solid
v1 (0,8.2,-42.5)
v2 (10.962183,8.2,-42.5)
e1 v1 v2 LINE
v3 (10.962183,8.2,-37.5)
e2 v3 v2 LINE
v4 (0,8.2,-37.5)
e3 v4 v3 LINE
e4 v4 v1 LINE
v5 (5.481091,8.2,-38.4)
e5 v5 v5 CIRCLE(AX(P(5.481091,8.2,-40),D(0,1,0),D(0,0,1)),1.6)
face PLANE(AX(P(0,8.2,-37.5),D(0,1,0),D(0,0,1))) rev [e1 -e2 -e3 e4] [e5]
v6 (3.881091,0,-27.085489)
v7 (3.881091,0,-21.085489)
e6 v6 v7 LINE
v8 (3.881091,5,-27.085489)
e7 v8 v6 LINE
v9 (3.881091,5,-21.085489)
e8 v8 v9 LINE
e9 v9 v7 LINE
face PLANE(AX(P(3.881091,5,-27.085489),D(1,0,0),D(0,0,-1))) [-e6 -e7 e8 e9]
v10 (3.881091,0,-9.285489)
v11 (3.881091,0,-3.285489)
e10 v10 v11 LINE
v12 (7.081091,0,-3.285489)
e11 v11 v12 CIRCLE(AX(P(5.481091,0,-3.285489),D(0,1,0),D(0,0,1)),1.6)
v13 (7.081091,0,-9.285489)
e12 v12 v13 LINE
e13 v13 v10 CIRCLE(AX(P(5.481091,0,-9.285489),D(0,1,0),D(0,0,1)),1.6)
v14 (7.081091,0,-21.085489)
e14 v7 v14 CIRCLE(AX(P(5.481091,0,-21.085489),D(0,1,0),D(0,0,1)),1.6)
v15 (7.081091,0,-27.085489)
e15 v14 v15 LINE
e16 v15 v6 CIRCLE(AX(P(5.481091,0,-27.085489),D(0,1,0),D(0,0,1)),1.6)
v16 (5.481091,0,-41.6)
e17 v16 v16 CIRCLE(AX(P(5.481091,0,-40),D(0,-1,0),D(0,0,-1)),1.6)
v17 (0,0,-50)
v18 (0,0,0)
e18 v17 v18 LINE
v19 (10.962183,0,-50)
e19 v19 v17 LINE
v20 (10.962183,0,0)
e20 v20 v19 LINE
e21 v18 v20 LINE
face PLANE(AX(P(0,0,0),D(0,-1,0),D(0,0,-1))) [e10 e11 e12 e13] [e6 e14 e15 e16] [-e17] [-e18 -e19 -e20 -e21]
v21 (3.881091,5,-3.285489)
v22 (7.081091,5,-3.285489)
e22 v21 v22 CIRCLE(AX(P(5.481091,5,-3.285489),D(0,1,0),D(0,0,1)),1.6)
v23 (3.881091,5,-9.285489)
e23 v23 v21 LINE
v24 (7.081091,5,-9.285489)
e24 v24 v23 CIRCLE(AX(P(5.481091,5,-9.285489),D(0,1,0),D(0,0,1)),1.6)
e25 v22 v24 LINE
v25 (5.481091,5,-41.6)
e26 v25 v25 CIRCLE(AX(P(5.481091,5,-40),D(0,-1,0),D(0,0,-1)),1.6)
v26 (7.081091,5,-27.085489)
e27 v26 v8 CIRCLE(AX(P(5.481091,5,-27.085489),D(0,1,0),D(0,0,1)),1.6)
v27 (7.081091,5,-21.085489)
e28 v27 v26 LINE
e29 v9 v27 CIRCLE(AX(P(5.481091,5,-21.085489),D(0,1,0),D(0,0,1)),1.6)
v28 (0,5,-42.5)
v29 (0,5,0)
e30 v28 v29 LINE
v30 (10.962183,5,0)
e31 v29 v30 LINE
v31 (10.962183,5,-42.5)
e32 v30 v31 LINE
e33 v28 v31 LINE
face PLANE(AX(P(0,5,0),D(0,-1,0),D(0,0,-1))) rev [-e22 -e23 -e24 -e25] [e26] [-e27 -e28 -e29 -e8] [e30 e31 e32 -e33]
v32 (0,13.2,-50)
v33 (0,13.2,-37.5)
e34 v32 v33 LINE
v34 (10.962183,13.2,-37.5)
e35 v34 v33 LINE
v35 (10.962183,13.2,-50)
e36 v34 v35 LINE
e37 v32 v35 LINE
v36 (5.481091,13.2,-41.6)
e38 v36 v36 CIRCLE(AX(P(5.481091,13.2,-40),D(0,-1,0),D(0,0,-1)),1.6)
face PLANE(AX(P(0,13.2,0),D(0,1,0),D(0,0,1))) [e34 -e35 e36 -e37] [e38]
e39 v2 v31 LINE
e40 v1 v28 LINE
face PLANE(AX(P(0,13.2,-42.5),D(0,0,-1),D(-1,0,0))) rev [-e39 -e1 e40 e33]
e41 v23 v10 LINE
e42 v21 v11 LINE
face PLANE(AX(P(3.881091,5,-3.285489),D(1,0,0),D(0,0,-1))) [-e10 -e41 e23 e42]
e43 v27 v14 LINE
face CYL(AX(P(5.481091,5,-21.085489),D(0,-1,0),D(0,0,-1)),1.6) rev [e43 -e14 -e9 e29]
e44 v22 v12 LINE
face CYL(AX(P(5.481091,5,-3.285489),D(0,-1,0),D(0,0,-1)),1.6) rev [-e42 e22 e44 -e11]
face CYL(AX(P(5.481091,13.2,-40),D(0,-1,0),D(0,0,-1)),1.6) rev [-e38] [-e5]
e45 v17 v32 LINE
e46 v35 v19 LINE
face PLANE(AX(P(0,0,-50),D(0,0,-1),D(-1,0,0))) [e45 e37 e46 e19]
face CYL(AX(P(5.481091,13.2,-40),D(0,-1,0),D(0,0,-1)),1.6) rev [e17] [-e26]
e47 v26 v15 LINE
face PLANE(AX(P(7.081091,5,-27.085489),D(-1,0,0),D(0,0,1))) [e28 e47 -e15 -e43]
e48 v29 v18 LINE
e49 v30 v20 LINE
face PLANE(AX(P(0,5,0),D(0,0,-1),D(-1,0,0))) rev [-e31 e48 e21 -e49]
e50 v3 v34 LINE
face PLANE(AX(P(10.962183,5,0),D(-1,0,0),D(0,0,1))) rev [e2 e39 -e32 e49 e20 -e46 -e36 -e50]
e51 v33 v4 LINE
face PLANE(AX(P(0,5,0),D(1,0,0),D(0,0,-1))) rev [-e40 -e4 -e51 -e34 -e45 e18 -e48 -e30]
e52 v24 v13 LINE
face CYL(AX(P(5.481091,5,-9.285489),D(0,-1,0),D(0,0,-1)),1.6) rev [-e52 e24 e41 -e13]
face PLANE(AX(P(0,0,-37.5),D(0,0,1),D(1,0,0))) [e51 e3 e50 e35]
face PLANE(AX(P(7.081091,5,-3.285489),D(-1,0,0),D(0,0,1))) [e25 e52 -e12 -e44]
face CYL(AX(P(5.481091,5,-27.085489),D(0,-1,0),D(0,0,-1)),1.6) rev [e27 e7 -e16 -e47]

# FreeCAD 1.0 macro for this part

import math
import FreeCAD as App
import Part
import Sketcher
Q = App.Units.Quantity


def add_polygon(sketch, points):
    """Adds a closed chain of lines whose ends are joined by coincident constraints."""
    first, n = sketch.GeometryCount, len(points)
    for a, b in zip(points, points[1:] + points[:1]):
        sketch.addGeometry(Part.LineSegment(App.Vector(*a, 0), App.Vector(*b, 0)), False)
    for i in range(n):
        sketch.addConstraint(Sketcher.Constraint("Coincident", first + i, 2, first + (i + 1) % n, 1))

doc = App.newDocument("Part")
body = doc.addObject("PartDesign::Body", "Body")

# Sketch on XZ plane
sketch1 = doc.addObject("Sketcher::SketchObject", "Sketch")
body.addObject(sketch1)
sketch1.AttachmentSupport = (doc.XZ_Plane, [""])
sketch1.MapMode = "FlatFace"
add_polygon(sketch1, [(0, -45), (0, 0), (11, 0), (11, -45)])  # lines 0-3
sketch1.addGeometry(Part.ArcOfCircle(Part.Circle(App.Vector(5.5, -3.3, 0), App.Vector(0, 0, 1), 1.6), math.radians(0), math.radians(180)), False)  # 4
sketch1.addGeometry(Part.LineSegment(App.Vector(3.9, -3.3, 0), App.Vector(3.9, -9.3, 0)), False)  # 5
sketch1.addGeometry(Part.ArcOfCircle(Part.Circle(App.Vector(5.5, -9.3, 0), App.Vector(0, 0, 1), 1.6), math.radians(180), math.radians(360)), False)  # 6
sketch1.addGeometry(Part.LineSegment(App.Vector(7.1, -9.3, 0), App.Vector(7.1, -3.3, 0)), False)  # 7
sketch1.addGeometry(Part.Circle(App.Vector(5.5, -40, 0), App.Vector(0, 0, 1), 1.2), False)  # 8
sketch1.addGeometry(Part.ArcOfCircle(Part.Circle(App.Vector(5.5, -27.1, 0), App.Vector(0, 0, 1), 1.6), math.radians(180), math.radians(360)), False)  # 9
sketch1.addGeometry(Part.LineSegment(App.Vector(7.1, -27.1, 0), App.Vector(7.1, -21.1, 0)), False)  # 10
sketch1.addGeometry(Part.ArcOfCircle(Part.Circle(App.Vector(5.5, -21.1, 0), App.Vector(0, 0, 1), 1.6), math.radians(0), math.radians(180)), False)  # 11
sketch1.addGeometry(Part.LineSegment(App.Vector(3.9, -21.1, 0), App.Vector(3.9, -27.1, 0)), False)  # 12
sketch1.addConstraint(Sketcher.Constraint("Tangent", 4, 2, 5, 1))
sketch1.addConstraint(Sketcher.Constraint("Tangent", 5, 2, 6, 1))
sketch1.addConstraint(Sketcher.Constraint("Tangent", 6, 2, 7, 1))
sketch1.addConstraint(Sketcher.Constraint("Tangent", 7, 2, 4, 1))
sketch1.addConstraint(Sketcher.Constraint("Tangent", 9, 2, 10, 1))
sketch1.addConstraint(Sketcher.Constraint("Tangent", 10, 2, 11, 1))
sketch1.addConstraint(Sketcher.Constraint("Tangent", 11, 2, 12, 1))
sketch1.addConstraint(Sketcher.Constraint("Tangent", 12, 2, 9, 1))
sketch1.addConstraint(Sketcher.Constraint("Vertical", 0))
sketch1.addConstraint(Sketcher.Constraint("Horizontal", 1))
sketch1.addConstraint(Sketcher.Constraint("Vertical", 2))
sketch1.addConstraint(Sketcher.Constraint("Horizontal", 3))
sketch1.addConstraint(Sketcher.Constraint("Vertical", 5))
sketch1.addConstraint(Sketcher.Constraint("Vertical", 7))
sketch1.addConstraint(Sketcher.Constraint("Vertical", 10))
sketch1.addConstraint(Sketcher.Constraint("Vertical", 12))
sketch1.addConstraint(Sketcher.Constraint("Coincident", 0, 2, -1, 1))
sketch1.addConstraint(Sketcher.Constraint("Equal", 6, 9))
sketch1.addConstraint(Sketcher.Constraint("Vertical", 6, 3, 8, 3))
sketch1.addConstraint(Sketcher.Constraint("Vertical", 8, 3, 9, 3))
sketch1.addConstraint(Sketcher.Constraint("Equal", 7, 10))
sketch1.addConstraint(Sketcher.Constraint("Diameter", 8, Q("2.5 mm")))
sketch1.addConstraint(Sketcher.Constraint("Radius", 4, Q("1.6 mm")))
sketch1.addConstraint(Sketcher.Constraint("DistanceY", 0, 1, 0, 2, Q("45 mm")))
sketch1.addConstraint(Sketcher.Constraint("DistanceY", 5, 2, 5, 1, Q("6 mm")))
sketch1.addConstraint(Sketcher.Constraint("DistanceY", 8, 3, -1, 1, Q("40 mm")))
sketch1.addConstraint(Sketcher.Constraint("DistanceY", 9, 3, 6, 3, Q("17.8 mm")))
sketch1.addConstraint(Sketcher.Constraint("DistanceX", 1, 1, 1, 2, Q("10.962183 mm")))
sketch1.addConstraint(Sketcher.Constraint("DistanceX", -1, 1, 4, 3, Q("5.481091 mm")))
sketch1.addConstraint(Sketcher.Constraint("DistanceY", 4, 3, -1, 1, Q("3.285489 mm")))
pad1 = doc.addObject("PartDesign::Pad", "Pad")
body.addObject(pad1)
pad1.Profile = sketch1
pad1.Length = 5
pad1.Reversed = True

# Sketch on XZ plane
sketch2 = doc.addObject("Sketcher::SketchObject", "Sketch001")
body.addObject(sketch2)
sketch2.AttachmentSupport = (doc.XZ_Plane, [""])
sketch2.MapMode = "FlatFace"
sketch2.AttachmentOffset = App.Placement(App.Vector(0, 0, -5), App.Rotation())
add_polygon(sketch2, [(0, -45), (0, -42.5), (11, -42.5), (11, -45)])  # lines 0-3
sketch2.addConstraint(Sketcher.Constraint("Vertical", 0))
sketch2.addConstraint(Sketcher.Constraint("Horizontal", 1))
sketch2.addConstraint(Sketcher.Constraint("Vertical", 2))
sketch2.addConstraint(Sketcher.Constraint("Horizontal", 3))
sketch2.addConstraint(Sketcher.Constraint("PointOnObject", 0, 2, -2))
sketch2.addConstraint(Sketcher.Constraint("DistanceY", 0, 1, 0, 2, Q("2.5 mm")))
sketch2.addConstraint(Sketcher.Constraint("DistanceY", 2, 2, -1, 1, Q("45 mm")))
sketch2.addConstraint(Sketcher.Constraint("DistanceX", 1, 1, 1, 2, Q("10.962183 mm")))
pad2 = doc.addObject("PartDesign::Pad", "Pad001")
body.addObject(pad2)
pad2.Profile = sketch2
pad2.Length = 8.2
pad2.Reversed = True

# Sketch on XY plane
sketch3 = doc.addObject("Sketcher::SketchObject", "Sketch002")
body.addObject(sketch3)
sketch3.AttachmentSupport = (doc.XY_Plane, [""])
sketch3.MapMode = "FlatFace"
sketch3.AttachmentOffset = App.Placement(App.Vector(0, 0, -42.5), App.Rotation())
add_polygon(sketch3, [(0, 13), (0, 8), (11, 8), (11, 13)])  # lines 0-3
sketch3.addConstraint(Sketcher.Constraint("Vertical", 0))
sketch3.addConstraint(Sketcher.Constraint("Horizontal", 1))
sketch3.addConstraint(Sketcher.Constraint("Vertical", 2))
sketch3.addConstraint(Sketcher.Constraint("Horizontal", 3))
sketch3.addConstraint(Sketcher.Constraint("PointOnObject", 0, 2, -2))
sketch3.addConstraint(Sketcher.Constraint("DistanceY", 0, 2, 0, 1, Q("5 mm")))
sketch3.addConstraint(Sketcher.Constraint("DistanceY", -1, 1, 0, 2, Q("8.2 mm")))
sketch3.addConstraint(Sketcher.Constraint("DistanceX", 1, 1, 1, 2, Q("10.962183 mm")))
pad3 = doc.addObject("PartDesign::Pad", "Pad002")
body.addObject(pad3)
pad3.Profile = sketch3
pad3.Length = 5

# Sketch on XZ plane
sketch4 = doc.addObject("Sketcher::SketchObject", "Sketch003")
body.addObject(sketch4)
sketch4.AttachmentSupport = (doc.XZ_Plane, [""])
sketch4.MapMode = "FlatFace"
sketch4.AttachmentOffset = App.Placement(App.Vector(0, 0, -8.2), App.Rotation())
sketch4.addGeometry(Part.Circle(App.Vector(5.5, -40, 0), App.Vector(0, 0, 1), 1.6), False)
sketch4.addConstraint(Sketcher.Constraint("Diameter", 0, Q("3.2 mm")))
sketch4.addConstraint(Sketcher.Constraint("DistanceY", 0, 3, -1, 1, Q("40 mm")))
sketch4.addConstraint(Sketcher.Constraint("DistanceX", -1, 1, 0, 3, Q("5.481091 mm")))
pocket1 = doc.addObject("PartDesign::Pocket", "Pocket")
body.addObject(pocket1)
pocket1.Profile = sketch4
pocket1.Type = "ThroughAll"
pocket1.Midplane = True

# Sketch on XY plane
sketch5 = doc.addObject("Sketcher::SketchObject", "Sketch004")
body.addObject(sketch5)
sketch5.AttachmentSupport = (doc.XY_Plane, [""])
sketch5.MapMode = "FlatFace"
sketch5.AttachmentOffset = App.Placement(App.Vector(0, 0, -45), App.Rotation())
add_polygon(sketch5, [(11, 13), (11, 0), (0, 0), (0, 13)])  # lines 0-3
sketch5.addConstraint(Sketcher.Constraint("Vertical", 0))
sketch5.addConstraint(Sketcher.Constraint("Horizontal", 1))
sketch5.addConstraint(Sketcher.Constraint("Vertical", 2))
sketch5.addConstraint(Sketcher.Constraint("Horizontal", 3))
sketch5.addConstraint(Sketcher.Constraint("Coincident", 1, 2, -1, 1))
sketch5.addConstraint(Sketcher.Constraint("DistanceY", 0, 2, 0, 1, Q("13.2 mm")))
sketch5.addConstraint(Sketcher.Constraint("DistanceX", 1, 2, 1, 1, Q("10.962183 mm")))
pad4 = doc.addObject("PartDesign::Pad", "Pad003")
body.addObject(pad4)
pad4.Profile = sketch5
pad4.Length = 5
pad4.Reversed = True

doc.recompute()
